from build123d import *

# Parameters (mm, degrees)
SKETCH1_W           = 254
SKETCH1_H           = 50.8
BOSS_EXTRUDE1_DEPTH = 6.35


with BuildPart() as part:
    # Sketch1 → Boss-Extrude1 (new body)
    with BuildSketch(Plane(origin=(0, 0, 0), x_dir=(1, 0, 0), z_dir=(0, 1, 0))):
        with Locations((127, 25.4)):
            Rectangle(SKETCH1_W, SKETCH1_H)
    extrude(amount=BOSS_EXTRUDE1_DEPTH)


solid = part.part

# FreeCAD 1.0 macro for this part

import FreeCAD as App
import Part
import Sketcher
from FreeCAD import Vector
Q = App.Units.Quantity

doc = App.newDocument("Part")
body = doc.addObject("PartDesign::Body", "Body")

# Sketch on XZ plane
sketch1 = body.newObject("Sketcher::SketchObject", "Sketch")
sketch1.AttachmentSupport = (doc.getObject("XZ_Plane"), [""])
sketch1.MapMode = "FlatFace"
sketch1.addGeometry(Part.LineSegment(Vector(0, -51, 0), Vector(0, 0, 0)), False)
sketch1.addGeometry(Part.LineSegment(Vector(0, 0, 0), Vector(254, 0, 0)), False)
sketch1.addGeometry(Part.LineSegment(Vector(254, 0, 0), Vector(254, -51, 0)), False)
sketch1.addGeometry(Part.LineSegment(Vector(254, -51, 0), Vector(0, -51, 0)), False)
sketch1.addConstraint(Sketcher.Constraint("Coincident", 0, 2, 1, 1))
sketch1.addConstraint(Sketcher.Constraint("Coincident", 1, 2, 2, 1))
sketch1.addConstraint(Sketcher.Constraint("Coincident", 2, 2, 3, 1))
sketch1.addConstraint(Sketcher.Constraint("Coincident", 3, 2, 0, 1))
sketch1.addConstraint(Sketcher.Constraint("Vertical", 0))
sketch1.addConstraint(Sketcher.Constraint("Horizontal", 1))
sketch1.addConstraint(Sketcher.Constraint("Vertical", 2))
sketch1.addConstraint(Sketcher.Constraint("Horizontal", 3))
sketch1.addConstraint(Sketcher.Constraint("Coincident", 0, 2, -1, 1))
sketch1.addConstraint(Sketcher.Constraint("DistanceX", 1, 1, 1, 2, Q("10 in")))
sketch1.addConstraint(Sketcher.Constraint("DistanceY", 0, 1, 0, 2, Q("2 in")))
pad1 = body.newObject("PartDesign::Pad", "Pad")
pad1.Profile = sketch1
pad1.Length = Q("0.25 in")
pad1.Reversed = True

doc.recompute()
